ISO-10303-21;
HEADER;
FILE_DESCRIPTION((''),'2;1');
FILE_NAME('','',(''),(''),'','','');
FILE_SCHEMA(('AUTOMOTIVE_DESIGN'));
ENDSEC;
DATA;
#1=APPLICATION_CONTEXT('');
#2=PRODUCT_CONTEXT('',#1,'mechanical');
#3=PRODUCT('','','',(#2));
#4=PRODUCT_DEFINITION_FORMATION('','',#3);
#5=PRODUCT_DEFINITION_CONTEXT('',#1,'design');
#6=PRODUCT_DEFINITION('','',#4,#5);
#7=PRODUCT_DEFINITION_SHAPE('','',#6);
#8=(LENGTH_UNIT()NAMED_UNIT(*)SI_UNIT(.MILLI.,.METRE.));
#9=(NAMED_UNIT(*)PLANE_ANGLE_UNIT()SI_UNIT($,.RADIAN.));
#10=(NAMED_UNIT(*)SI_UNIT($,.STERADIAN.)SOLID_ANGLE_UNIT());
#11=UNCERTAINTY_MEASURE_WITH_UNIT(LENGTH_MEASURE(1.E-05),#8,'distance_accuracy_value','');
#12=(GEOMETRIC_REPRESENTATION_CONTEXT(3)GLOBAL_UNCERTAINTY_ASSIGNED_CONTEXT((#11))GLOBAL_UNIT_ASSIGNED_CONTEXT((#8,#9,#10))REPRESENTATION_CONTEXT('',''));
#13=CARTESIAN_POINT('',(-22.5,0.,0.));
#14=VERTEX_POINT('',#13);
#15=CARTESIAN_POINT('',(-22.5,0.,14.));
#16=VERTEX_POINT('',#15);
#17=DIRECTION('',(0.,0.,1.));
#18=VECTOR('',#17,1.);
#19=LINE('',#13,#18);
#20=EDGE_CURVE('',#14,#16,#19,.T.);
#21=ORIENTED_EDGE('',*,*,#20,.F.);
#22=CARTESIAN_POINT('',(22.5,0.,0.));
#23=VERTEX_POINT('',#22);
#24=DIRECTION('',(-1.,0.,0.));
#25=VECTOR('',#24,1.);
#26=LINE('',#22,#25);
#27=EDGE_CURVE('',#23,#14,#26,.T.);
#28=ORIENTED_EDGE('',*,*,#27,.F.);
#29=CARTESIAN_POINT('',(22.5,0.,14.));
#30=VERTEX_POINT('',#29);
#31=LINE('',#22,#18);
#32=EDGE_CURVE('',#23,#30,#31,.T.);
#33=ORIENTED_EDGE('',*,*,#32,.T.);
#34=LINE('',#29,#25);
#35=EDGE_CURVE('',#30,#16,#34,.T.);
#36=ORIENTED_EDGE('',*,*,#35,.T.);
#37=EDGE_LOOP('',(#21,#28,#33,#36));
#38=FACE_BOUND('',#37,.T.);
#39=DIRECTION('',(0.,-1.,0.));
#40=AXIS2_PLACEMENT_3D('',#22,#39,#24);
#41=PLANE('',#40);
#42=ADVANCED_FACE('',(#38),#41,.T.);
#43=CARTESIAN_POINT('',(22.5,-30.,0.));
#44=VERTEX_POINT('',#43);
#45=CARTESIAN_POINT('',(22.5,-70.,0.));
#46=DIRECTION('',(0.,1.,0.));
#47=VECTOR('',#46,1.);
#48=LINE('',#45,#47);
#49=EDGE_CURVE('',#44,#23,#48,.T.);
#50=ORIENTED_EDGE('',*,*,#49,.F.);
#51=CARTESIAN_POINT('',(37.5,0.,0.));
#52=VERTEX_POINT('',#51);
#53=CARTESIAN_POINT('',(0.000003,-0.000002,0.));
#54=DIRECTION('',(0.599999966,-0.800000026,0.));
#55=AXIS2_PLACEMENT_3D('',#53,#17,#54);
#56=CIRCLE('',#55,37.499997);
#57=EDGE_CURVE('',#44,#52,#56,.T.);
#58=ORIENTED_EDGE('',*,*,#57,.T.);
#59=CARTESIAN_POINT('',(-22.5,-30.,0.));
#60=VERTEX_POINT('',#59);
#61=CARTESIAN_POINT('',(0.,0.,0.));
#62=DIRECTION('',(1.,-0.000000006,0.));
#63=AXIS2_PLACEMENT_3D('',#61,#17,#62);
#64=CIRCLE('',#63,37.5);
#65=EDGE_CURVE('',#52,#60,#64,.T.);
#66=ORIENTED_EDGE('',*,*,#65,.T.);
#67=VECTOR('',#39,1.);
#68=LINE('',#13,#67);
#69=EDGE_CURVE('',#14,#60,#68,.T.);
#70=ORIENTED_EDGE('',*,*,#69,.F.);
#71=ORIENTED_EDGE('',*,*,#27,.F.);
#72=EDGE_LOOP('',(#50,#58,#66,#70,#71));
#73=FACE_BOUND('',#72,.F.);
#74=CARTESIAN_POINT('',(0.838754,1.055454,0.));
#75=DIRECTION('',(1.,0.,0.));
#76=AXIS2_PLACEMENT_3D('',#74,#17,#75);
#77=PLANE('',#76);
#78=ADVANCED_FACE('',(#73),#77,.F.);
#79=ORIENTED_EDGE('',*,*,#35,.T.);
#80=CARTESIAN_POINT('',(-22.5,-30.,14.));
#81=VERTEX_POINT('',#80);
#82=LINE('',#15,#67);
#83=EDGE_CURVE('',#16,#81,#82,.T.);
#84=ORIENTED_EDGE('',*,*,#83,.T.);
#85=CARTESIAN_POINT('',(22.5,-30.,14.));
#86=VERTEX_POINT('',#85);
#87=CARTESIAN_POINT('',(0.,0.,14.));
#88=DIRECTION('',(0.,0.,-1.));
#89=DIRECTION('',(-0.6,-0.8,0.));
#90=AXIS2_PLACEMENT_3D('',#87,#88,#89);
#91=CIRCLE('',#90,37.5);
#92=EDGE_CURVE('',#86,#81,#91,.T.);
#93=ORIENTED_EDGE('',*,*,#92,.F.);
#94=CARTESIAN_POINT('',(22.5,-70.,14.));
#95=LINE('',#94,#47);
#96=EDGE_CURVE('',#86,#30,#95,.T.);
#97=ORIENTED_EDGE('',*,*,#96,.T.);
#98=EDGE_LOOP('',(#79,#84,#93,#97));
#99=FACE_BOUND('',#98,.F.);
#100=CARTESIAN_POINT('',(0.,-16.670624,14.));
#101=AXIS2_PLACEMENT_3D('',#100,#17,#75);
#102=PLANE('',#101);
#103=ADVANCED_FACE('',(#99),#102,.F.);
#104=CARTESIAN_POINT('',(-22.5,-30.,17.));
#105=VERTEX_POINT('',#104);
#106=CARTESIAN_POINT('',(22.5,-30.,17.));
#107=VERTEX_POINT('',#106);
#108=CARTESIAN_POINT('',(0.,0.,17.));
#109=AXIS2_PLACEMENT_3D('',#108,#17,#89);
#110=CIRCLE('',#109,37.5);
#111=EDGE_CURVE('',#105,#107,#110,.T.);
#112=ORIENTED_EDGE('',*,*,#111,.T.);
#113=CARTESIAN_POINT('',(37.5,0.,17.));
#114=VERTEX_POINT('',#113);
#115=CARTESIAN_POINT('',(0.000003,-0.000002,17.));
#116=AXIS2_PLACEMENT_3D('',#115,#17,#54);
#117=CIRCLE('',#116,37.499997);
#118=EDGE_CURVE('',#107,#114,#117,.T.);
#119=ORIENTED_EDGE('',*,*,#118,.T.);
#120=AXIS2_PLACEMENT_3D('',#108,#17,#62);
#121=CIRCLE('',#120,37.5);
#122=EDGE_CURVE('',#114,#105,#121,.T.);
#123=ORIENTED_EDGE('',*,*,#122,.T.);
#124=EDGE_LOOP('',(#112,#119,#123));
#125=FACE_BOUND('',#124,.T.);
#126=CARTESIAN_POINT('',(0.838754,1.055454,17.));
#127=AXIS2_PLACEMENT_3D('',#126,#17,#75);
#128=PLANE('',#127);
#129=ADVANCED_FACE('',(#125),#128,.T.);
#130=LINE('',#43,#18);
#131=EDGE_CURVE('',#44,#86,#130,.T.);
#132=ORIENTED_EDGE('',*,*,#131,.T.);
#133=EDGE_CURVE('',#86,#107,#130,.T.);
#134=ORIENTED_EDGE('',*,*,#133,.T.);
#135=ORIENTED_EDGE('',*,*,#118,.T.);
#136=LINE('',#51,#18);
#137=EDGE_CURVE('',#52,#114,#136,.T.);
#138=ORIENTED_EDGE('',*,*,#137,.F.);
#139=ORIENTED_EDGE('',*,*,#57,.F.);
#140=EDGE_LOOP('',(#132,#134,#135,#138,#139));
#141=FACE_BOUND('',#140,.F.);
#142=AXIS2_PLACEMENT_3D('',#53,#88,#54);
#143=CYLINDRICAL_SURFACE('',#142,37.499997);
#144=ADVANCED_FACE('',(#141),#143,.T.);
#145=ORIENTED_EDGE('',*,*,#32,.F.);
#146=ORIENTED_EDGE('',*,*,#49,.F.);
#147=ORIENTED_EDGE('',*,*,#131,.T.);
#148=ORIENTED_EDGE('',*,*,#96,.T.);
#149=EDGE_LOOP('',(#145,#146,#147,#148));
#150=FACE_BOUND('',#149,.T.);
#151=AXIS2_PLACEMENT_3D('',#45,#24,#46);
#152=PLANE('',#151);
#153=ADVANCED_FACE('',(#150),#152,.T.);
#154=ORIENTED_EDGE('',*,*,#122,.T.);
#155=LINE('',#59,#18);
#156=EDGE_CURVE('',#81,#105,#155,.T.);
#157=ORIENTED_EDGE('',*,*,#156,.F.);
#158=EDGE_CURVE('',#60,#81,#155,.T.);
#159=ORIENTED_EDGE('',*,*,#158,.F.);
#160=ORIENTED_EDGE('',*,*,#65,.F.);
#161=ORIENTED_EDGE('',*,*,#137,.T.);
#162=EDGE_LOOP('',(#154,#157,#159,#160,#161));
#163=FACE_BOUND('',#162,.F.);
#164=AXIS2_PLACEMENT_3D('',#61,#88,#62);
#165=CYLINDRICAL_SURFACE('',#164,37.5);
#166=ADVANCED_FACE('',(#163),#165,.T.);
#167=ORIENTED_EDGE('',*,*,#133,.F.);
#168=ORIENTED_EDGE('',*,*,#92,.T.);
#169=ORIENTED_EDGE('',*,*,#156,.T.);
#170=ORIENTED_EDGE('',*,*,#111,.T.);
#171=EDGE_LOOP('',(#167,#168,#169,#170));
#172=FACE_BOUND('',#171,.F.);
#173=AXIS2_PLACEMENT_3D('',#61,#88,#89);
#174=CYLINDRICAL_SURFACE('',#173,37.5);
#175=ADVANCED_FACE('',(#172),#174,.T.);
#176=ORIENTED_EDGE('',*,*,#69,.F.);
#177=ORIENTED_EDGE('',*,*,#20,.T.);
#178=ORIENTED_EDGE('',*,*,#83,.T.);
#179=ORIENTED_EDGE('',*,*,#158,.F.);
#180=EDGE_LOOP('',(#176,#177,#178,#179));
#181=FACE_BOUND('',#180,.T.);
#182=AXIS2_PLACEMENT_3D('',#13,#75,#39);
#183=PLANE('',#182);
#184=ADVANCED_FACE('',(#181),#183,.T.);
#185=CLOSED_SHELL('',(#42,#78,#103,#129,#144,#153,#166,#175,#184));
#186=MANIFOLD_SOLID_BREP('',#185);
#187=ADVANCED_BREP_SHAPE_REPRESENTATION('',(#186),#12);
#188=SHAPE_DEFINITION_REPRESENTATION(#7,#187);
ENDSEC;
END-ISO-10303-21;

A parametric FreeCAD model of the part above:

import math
import FreeCAD as App
import Part
import Sketcher


def add_polygon(sketch, points):
    """Adds a closed chain of lines whose ends are joined by coincident constraints."""
    first, n = sketch.GeometryCount, len(points)
    for a, b in zip(points, points[1:] + points[:1]):
        sketch.addGeometry(Part.LineSegment(App.Vector(*a, 0), App.Vector(*b, 0)), False)
    for i in range(n):
        sketch.addConstraint(Sketcher.Constraint("Coincident", first + i, 2, first + (i + 1) % n, 1))

doc = App.newDocument("Part")
body = doc.addObject("PartDesign::Body", "Body")

# Sketch on XY plane
sketch1 = body.newObject("Sketcher::SketchObject", "Sketch")
sketch1.AttachmentSupport = (doc.getObject("XY_Plane"), [""])
sketch1.MapMode = "FlatFace"
sketch1.addGeometry(Part.ArcOfCircle(Part.Circle(App.Vector(0.000003, -0.000002, 0), App.Vector(0, 0, 1), 37.499997), math.radians(-53.130105), math.radians(0.000002)), False)
sketch1.addGeometry(Part.ArcOfCircle(Part.Circle(App.Vector(0, 0, 0), App.Vector(0, 0, 1), 37.5), math.radians(0), math.radians(233.130103)), False)
sketch1.addGeometry(Part.ArcOfCircle(Part.Circle(App.Vector(0, 0, 0), App.Vector(0, 0, 1), 37.5), math.radians(-126.869898), math.radians(-53.130102)), False)
sketch1.addConstraint(Sketcher.Constraint("Tangent", 0, 2, 1, 1))
sketch1.addConstraint(Sketcher.Constraint("Tangent", 1, 2, 2, 1))
sketch1.addConstraint(Sketcher.Constraint("Tangent", 2, 2, 0, 1))
sketch1.addConstraint(Sketcher.Constraint("Coincident", 0, 3, -1, 1))
sketch1.addConstraint(Sketcher.Constraint("PointOnObject", 0, 2, -1))
sketch1.addConstraint(Sketcher.Constraint("Horizontal", 1, 2, 2, 2))
sketch1.addConstraint(Sketcher.Constraint("Radius", 1, 37.5))
sketch1.addConstraint(Sketcher.Constraint("DistanceY", 1, 2, -1, 1, 30.0))
pad1 = body.newObject("PartDesign::Pad", "Pad")
pad1.Profile = sketch1
pad1.Length = 17

# Sketch on XY plane
sketch2 = body.newObject("Sketcher::SketchObject", "Sketch001")
sketch2.AttachmentSupport = (doc.getObject("XY_Plane"), [""])
sketch2.MapMode = "FlatFace"
add_polygon(sketch2, [(-22.5, 0), (-22.5, -70), (22.5, -70), (22.5, 0)])  # lines 0-3
sketch2.addConstraint(Sketcher.Constraint("Vertical", 0))
sketch2.addConstraint(Sketcher.Constraint("Horizontal", 1))
sketch2.addConstraint(Sketcher.Constraint("Vertical", 2))
sketch2.addConstraint(Sketcher.Constraint("Horizontal", 3))
sketch2.addConstraint(Sketcher.Constraint("Symmetric", 2, 2, 3, 2, -1, 1))
sketch2.addConstraint(Sketcher.Constraint("DistanceX", 1, 1, 1, 2, 45.0))
sketch2.addConstraint(Sketcher.Constraint("DistanceY", 0, 2, 0, 1, 70.0))
pocket1 = body.newObject("PartDesign::Pocket", "Pocket")
pocket1.Profile = sketch2
pocket1.Length = 14
pocket1.Reversed = True

doc.recompute()
